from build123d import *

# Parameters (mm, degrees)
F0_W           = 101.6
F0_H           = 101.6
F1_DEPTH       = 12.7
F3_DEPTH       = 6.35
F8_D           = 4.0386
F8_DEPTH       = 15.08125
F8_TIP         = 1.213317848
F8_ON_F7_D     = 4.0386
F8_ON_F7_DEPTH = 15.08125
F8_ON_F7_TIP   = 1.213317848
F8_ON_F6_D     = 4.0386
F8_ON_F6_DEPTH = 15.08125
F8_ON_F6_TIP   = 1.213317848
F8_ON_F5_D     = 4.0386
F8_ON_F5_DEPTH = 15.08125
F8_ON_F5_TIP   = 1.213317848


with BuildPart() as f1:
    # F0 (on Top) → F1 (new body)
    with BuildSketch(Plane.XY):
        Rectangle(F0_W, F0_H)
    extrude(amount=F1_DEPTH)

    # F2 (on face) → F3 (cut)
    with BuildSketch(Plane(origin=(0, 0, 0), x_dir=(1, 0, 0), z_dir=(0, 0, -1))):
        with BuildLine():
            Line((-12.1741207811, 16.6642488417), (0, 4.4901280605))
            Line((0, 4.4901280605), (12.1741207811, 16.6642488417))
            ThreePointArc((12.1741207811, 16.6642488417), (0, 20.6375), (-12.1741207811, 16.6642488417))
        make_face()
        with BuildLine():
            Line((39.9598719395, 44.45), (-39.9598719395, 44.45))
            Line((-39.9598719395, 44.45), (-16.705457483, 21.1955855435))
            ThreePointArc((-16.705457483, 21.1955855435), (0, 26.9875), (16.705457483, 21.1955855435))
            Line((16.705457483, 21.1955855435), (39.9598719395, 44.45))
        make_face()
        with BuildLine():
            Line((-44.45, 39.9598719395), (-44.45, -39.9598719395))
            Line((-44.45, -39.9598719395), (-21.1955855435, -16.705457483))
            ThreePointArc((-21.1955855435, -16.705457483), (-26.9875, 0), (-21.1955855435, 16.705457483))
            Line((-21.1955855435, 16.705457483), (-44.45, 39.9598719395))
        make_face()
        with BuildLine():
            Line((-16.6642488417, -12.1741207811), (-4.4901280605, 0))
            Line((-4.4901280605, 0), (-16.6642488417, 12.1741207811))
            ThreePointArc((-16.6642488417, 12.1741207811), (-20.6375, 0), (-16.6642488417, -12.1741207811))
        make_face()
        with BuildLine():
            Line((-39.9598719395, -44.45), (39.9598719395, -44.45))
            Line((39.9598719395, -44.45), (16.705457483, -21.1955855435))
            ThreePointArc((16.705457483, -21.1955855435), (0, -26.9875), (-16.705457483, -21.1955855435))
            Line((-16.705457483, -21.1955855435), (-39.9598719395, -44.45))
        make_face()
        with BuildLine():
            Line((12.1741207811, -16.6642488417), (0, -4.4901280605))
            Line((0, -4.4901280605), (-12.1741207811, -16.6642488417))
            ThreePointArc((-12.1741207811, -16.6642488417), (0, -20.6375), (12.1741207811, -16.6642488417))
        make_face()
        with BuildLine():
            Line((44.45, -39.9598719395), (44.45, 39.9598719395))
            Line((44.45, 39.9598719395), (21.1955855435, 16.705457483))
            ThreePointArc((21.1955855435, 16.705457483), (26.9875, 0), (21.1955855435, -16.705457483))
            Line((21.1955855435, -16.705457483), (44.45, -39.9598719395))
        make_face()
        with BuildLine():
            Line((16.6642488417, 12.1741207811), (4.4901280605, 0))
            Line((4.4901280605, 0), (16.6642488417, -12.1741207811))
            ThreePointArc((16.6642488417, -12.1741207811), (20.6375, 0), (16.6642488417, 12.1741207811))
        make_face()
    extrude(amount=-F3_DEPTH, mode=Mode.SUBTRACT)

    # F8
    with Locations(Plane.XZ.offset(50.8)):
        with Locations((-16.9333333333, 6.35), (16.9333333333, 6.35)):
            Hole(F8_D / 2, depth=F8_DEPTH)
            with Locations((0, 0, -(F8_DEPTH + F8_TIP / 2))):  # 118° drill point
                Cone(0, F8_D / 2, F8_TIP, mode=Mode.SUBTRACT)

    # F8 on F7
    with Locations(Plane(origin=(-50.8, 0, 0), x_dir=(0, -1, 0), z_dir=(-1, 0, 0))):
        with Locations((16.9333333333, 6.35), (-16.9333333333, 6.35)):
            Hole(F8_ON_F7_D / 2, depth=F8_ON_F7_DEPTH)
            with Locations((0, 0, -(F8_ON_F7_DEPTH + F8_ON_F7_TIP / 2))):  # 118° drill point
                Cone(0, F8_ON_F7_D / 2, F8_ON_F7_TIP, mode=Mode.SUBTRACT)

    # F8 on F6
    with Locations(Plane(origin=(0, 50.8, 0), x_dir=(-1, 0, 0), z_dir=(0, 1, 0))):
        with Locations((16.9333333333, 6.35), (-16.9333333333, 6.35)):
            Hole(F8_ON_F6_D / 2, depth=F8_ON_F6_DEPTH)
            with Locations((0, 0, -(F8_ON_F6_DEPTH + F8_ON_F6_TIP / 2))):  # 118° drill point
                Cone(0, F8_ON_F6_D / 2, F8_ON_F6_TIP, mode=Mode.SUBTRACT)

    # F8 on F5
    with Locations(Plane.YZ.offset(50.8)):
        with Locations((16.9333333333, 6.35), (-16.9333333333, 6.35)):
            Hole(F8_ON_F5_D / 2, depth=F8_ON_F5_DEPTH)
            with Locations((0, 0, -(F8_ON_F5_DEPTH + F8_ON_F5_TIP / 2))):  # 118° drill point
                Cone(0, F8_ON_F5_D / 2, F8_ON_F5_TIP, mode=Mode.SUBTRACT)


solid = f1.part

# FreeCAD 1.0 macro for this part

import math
import FreeCAD as App
import Part
import Sketcher
Q = App.Units.Quantity


def add_polygon(sketch, points):
    """Adds a closed chain of lines whose ends are joined by coincident constraints."""
    first, n = sketch.GeometryCount, len(points)
    for a, b in zip(points, points[1:] + points[:1]):
        sketch.addGeometry(Part.LineSegment(App.Vector(*a, 0), App.Vector(*b, 0)), False)
    for i in range(n):
        sketch.addConstraint(Sketcher.Constraint("Coincident", first + i, 2, first + (i + 1) % n, 1))

doc = App.newDocument("Part")
body = doc.addObject("PartDesign::Body", "Body")

# Sketch on XY plane
sketch1 = body.newObject("Sketcher::SketchObject", "Sketch")
sketch1.AttachmentSupport = (doc.getObject("XY_Plane"), [""])
sketch1.MapMode = "FlatFace"
add_polygon(sketch1, [(-50.8, 50.8), (-50.8, -50.8), (50.8, -50.8), (50.8, 50.8)])  # lines 0-3
sketch1.addConstraint([
    Sketcher.Constraint("Vertical", 0),
    Sketcher.Constraint("Horizontal", 1),
    Sketcher.Constraint("Vertical", 2),
    Sketcher.Constraint("Horizontal", 3),
    Sketcher.Constraint("Symmetric", 0, 2, 2, 2, -1, 1),
    Sketcher.Constraint("Equal", 3, 0),
    Sketcher.Constraint("DistanceX", 1, 1, 1, 2, Q("4 in")),
])
pad1 = body.newObject("PartDesign::Pad", "Pad")
pad1.Profile = sketch1
pad1.Length = Q("0.5 in")

# Sketch on XY plane
sketch2 = body.newObject("Sketcher::SketchObject", "Sketch001")
sketch2.AttachmentSupport = (doc.getObject("XY_Plane"), [""])
sketch2.MapMode = "FlatFace"
sketch2.addGeometry([
    Part.LineSegment(App.Vector(-12.174121, -16.664249, 0), App.Vector(0, -4.490128, 0)),  # 0
    Part.LineSegment(App.Vector(0, -4.490128, 0), App.Vector(12.174121, -16.664249, 0)),  # 1
    Part.ArcOfCircle(Part.Circle(App.Vector(0, 0, 0), App.Vector(0, 0, 1), 20.6375), math.radians(-126.150117), math.radians(-53.849883)),  # 2
    Part.LineSegment(App.Vector(39.959872, -44.45, 0), App.Vector(-39.959872, -44.45, 0)),  # 3
    Part.LineSegment(App.Vector(-39.959872, -44.45, 0), App.Vector(-16.705457, -21.195586, 0)),  # 4
    Part.ArcOfCircle(Part.Circle(App.Vector(0, 0, 0), App.Vector(0, 0, 1), 26.9875), math.radians(-128.243673), math.radians(-51.756327)),  # 5
    Part.LineSegment(App.Vector(16.705457, -21.195586, 0), App.Vector(39.959872, -44.45, 0)),  # 6
    Part.LineSegment(App.Vector(-44.45, -39.959872, 0), App.Vector(-44.45, 39.959872, 0)),  # 7
    Part.LineSegment(App.Vector(-44.45, 39.959872, 0), App.Vector(-21.195586, 16.705457, 0)),  # 8
    Part.ArcOfCircle(Part.Circle(App.Vector(0, 0, 0), App.Vector(0, 0, 1), 26.9875), math.radians(141.756327), math.radians(218.243673)),  # 9
    Part.LineSegment(App.Vector(-21.195586, -16.705457, 0), App.Vector(-44.45, -39.959872, 0)),  # 10
    Part.LineSegment(App.Vector(-16.664249, 12.174121, 0), App.Vector(-4.490128, 0, 0)),  # 11
    Part.LineSegment(App.Vector(-4.490128, 0, 0), App.Vector(-16.664249, -12.174121, 0)),  # 12
    Part.ArcOfCircle(Part.Circle(App.Vector(0, 0, 0), App.Vector(0, 0, 1), 20.6375), math.radians(143.849883), math.radians(216.150117)),  # 13
    Part.LineSegment(App.Vector(-39.959872, 44.45, 0), App.Vector(39.959872, 44.45, 0)),  # 14
    Part.LineSegment(App.Vector(39.959872, 44.45, 0), App.Vector(16.705457, 21.195586, 0)),  # 15
    Part.ArcOfCircle(Part.Circle(App.Vector(0, 0, 0), App.Vector(0, 0, 1), 26.9875), math.radians(51.756327), math.radians(128.243673)),  # 16
    Part.LineSegment(App.Vector(-16.705457, 21.195586, 0), App.Vector(-39.959872, 44.45, 0)),  # 17
    Part.LineSegment(App.Vector(12.174121, 16.664249, 0), App.Vector(0, 4.490128, 0)),  # 18
    Part.LineSegment(App.Vector(0, 4.490128, 0), App.Vector(-12.174121, 16.664249, 0)),  # 19
    Part.ArcOfCircle(Part.Circle(App.Vector(0, 0, 0), App.Vector(0, 0, 1), 20.6375), math.radians(53.849883), math.radians(126.150117)),  # 20
    Part.LineSegment(App.Vector(44.45, 39.959872, 0), App.Vector(44.45, -39.959872, 0)),  # 21
    Part.LineSegment(App.Vector(44.45, -39.959872, 0), App.Vector(21.195586, -16.705457, 0)),  # 22
    Part.ArcOfCircle(Part.Circle(App.Vector(0, 0, 0), App.Vector(0, 0, 1), 26.9875), math.radians(-38.243673), math.radians(38.243673)),  # 23
    Part.LineSegment(App.Vector(21.195586, 16.705457, 0), App.Vector(44.45, 39.959872, 0)),  # 24
    Part.LineSegment(App.Vector(16.664249, -12.174121, 0), App.Vector(4.490128, 0, 0)),  # 25
    Part.LineSegment(App.Vector(4.490128, 0, 0), App.Vector(16.664249, 12.174121, 0)),  # 26
    Part.ArcOfCircle(Part.Circle(App.Vector(0, 0, 0), App.Vector(0, 0, 1), 20.6375), math.radians(-36.150117), math.radians(36.150117)),  # 27
], False)
sketch2.addConstraint([
    Sketcher.Constraint("Coincident", 0, 2, 1, 1),
    Sketcher.Constraint("Coincident", 1, 2, 2, 2),
    Sketcher.Constraint("Coincident", 2, 1, 0, 1),
    Sketcher.Constraint("Coincident", 3, 2, 4, 1),
    Sketcher.Constraint("Coincident", 4, 2, 5, 1),
    Sketcher.Constraint("Coincident", 5, 2, 6, 1),
    Sketcher.Constraint("Coincident", 6, 2, 3, 1),
    Sketcher.Constraint("Coincident", 7, 2, 8, 1),
    Sketcher.Constraint("Coincident", 8, 2, 9, 1),
    Sketcher.Constraint("Coincident", 9, 2, 10, 1),
    Sketcher.Constraint("Coincident", 10, 2, 7, 1),
    Sketcher.Constraint("Coincident", 11, 2, 12, 1),
    Sketcher.Constraint("Coincident", 12, 2, 13, 2),
    Sketcher.Constraint("Coincident", 13, 1, 11, 1),
    Sketcher.Constraint("Coincident", 14, 2, 15, 1),
    Sketcher.Constraint("Coincident", 15, 2, 16, 1),
    Sketcher.Constraint("Coincident", 16, 2, 17, 1),
    Sketcher.Constraint("Coincident", 17, 2, 14, 1),
    Sketcher.Constraint("Coincident", 18, 2, 19, 1),
    Sketcher.Constraint("Coincident", 19, 2, 20, 2),
    Sketcher.Constraint("Coincident", 20, 1, 18, 1),
    Sketcher.Constraint("Coincident", 21, 2, 22, 1),
    Sketcher.Constraint("Coincident", 22, 2, 23, 1),
    Sketcher.Constraint("Coincident", 23, 2, 24, 1),
    Sketcher.Constraint("Coincident", 24, 2, 21, 1),
    Sketcher.Constraint("Coincident", 25, 2, 26, 1),
    Sketcher.Constraint("Coincident", 26, 2, 27, 2),
    Sketcher.Constraint("Coincident", 27, 1, 25, 1),
    Sketcher.Constraint("Horizontal", 3),
    Sketcher.Constraint("Vertical", 7),
    Sketcher.Constraint("Horizontal", 14),
    Sketcher.Constraint("Vertical", 21),
    Sketcher.Constraint("Coincident", 2, 3, -1, 1),
    Sketcher.Constraint("Coincident", 5, 3, -1, 1),
    Sketcher.Constraint("Coincident", 9, 3, -1, 1),
    Sketcher.Constraint("Coincident", 13, 3, -1, 1),
    Sketcher.Constraint("Coincident", 16, 3, -1, 1),
    Sketcher.Constraint("Coincident", 20, 3, -1, 1),
    Sketcher.Constraint("Coincident", 23, 3, -1, 1),
    Sketcher.Constraint("Coincident", 27, 3, -1, 1),
    Sketcher.Constraint("Equal", 5, 9),
    Sketcher.Constraint("Equal", 2, 13),
    Sketcher.Constraint("Equal", 9, 16),
    Sketcher.Constraint("Equal", 13, 20),
    Sketcher.Constraint("Equal", 16, 23),
    Sketcher.Constraint("Equal", 20, 27),
    Sketcher.Constraint("Symmetric", 3, 2, 14, 2, -1, 1),
    Sketcher.Constraint("Symmetric", 0, 2, 18, 2, -1, 1),
    Sketcher.Constraint("Symmetric", 7, 2, 21, 2, -1, 1),
    Sketcher.Constraint("Symmetric", 11, 2, 25, 2, -1, 1),
    Sketcher.Constraint("PointOnObject", 0, 2, -2),
    Sketcher.Constraint("PointOnObject", 11, 2, -1),
    Sketcher.Constraint("Perpendicular", 0, 1),
    Sketcher.Constraint("Perpendicular", 1, 4),
    Sketcher.Constraint("Perpendicular", 4, 6),
    Sketcher.Constraint("Parallel", 6, 8),
    Sketcher.Constraint("Perpendicular", 8, 10),
    Sketcher.Constraint("Perpendicular", 10, 11),
    Sketcher.Constraint("Perpendicular", 11, 12),
    Sketcher.Constraint("Parallel", 12, 15),
    Sketcher.Constraint("Perpendicular", 15, 17),
    Sketcher.Constraint("Perpendicular", 17, 18),
    Sketcher.Constraint("Perpendicular", 18, 19),
    Sketcher.Constraint("Parallel", 19, 22),
    Sketcher.Constraint("Perpendicular", 22, 24),
    Sketcher.Constraint("Perpendicular", 24, 25),
    Sketcher.Constraint("Perpendicular", 25, 26),
    Sketcher.Constraint("Horizontal", 1, 2, 2, 1),
    Sketcher.Constraint("Horizontal", 4, 2, 5, 2),
    Sketcher.Constraint("Horizontal", 15, 2, 16, 2),
    Sketcher.Constraint("Horizontal", 10, 2, 21, 2),
    Sketcher.Constraint("Horizontal", 8, 2, 23, 2),
    Sketcher.Constraint("Equal", 14, 7),
    Sketcher.Constraint("Equal", 6, 8),
    Sketcher.Constraint("Equal", 1, 11),
    Sketcher.Constraint("Radius", 2, Q("0.8125 in")),
    Sketcher.Constraint("Radius", 5, Q("1.0625 in")),
    Sketcher.Constraint("DistanceY", 3, 2, -1, 1, Q("1.75 in")),
    Sketcher.Constraint("Distance", 4, Q("32.886708 mm")),
    Sketcher.Constraint("DistanceY", 0, 2, -1, 1, Q("4.490128 mm")),
])
pocket1 = body.newObject("PartDesign::Pocket", "Pocket")
pocket1.Profile = sketch2
pocket1.Length = Q("0.25 in")
pocket1.Reversed = True

# Sketch on XZ plane
sketch3 = body.newObject("Sketcher::SketchObject", "Sketch002")
sketch3.AttachmentSupport = (doc.getObject("XZ_Plane"), [""])
sketch3.MapMode = "FlatFace"
sketch3.AttachmentOffset = App.Placement(App.Vector(0, 0, 2 * 25.4), App.Rotation())
sketch3.addGeometry([
    Part.Circle(App.Vector(-16.933333, 6.35, 0), App.Vector(0, 0, 1), 2.0193),
    Part.Circle(App.Vector(16.933333, 6.35, 0), App.Vector(0, 0, 1), 2.0193),
], False)
sketch3.addConstraint([
    Sketcher.Constraint("Equal", 0, 1),
    Sketcher.Constraint("Symmetric", 0, 3, 1, 3, -2),
    Sketcher.Constraint("Diameter", 0, Q("0.159 in")),
    Sketcher.Constraint("DistanceY", -1, 1, 0, 3, Q("0.25 in")),
    Sketcher.Constraint("DistanceX", 0, 3, -1, 1, Q("16.933333 mm")),
])
doc.recompute()
hole = body.newObject("PartDesign::Hole", "Hole")
hole.Profile = sketch3
hole.ThreadType = "None"
hole.Diameter = Q("0.159 in")
hole.DepthType = "Dimension"
hole.Depth = Q("0.59375 in")
hole.DrillPoint = "Angled"
hole.DrillPointAngle = 118

# Sketch on YZ plane
sketch4 = body.newObject("Sketcher::SketchObject", "Sketch003")
sketch4.AttachmentSupport = (doc.getObject("YZ_Plane"), [""])
sketch4.MapMode = "FlatFace"
sketch4.AttachmentOffset = App.Placement(App.Vector(0, 0, -2 * 25.4), App.Rotation())
sketch4.addGeometry([
    Part.Circle(App.Vector(-16.933333, 6.35, 0), App.Vector(0, 0, 1), 2.0193),
    Part.Circle(App.Vector(16.933333, 6.35, 0), App.Vector(0, 0, 1), 2.0193),
], False)
sketch4.addConstraint([
    Sketcher.Constraint("Equal", 0, 1),
    Sketcher.Constraint("Symmetric", 0, 3, 1, 3, -2),
    Sketcher.Constraint("Diameter", 0, Q("0.159 in")),
    Sketcher.Constraint("DistanceY", -1, 1, 0, 3, Q("0.25 in")),
    Sketcher.Constraint("DistanceX", 0, 3, -1, 1, Q("16.933333 mm")),
])
doc.recompute()
hole2 = body.newObject("PartDesign::Hole", "Hole001")
hole2.Profile = sketch4
hole2.ThreadType = "None"
hole2.Diameter = Q("0.159 in")
hole2.DepthType = "Dimension"
hole2.Depth = Q("0.59375 in")
hole2.DrillPoint = "Angled"
hole2.DrillPointAngle = 118
hole2.Reversed = True

# Sketch on XZ plane
sketch5 = body.newObject("Sketcher::SketchObject", "Sketch004")
sketch5.AttachmentSupport = (doc.getObject("XZ_Plane"), [""])
sketch5.MapMode = "FlatFace"
sketch5.AttachmentOffset = App.Placement(App.Vector(0, 0, -2 * 25.4), App.Rotation())
sketch5.addGeometry([
    Part.Circle(App.Vector(-16.933333, 6.35, 0), App.Vector(0, 0, 1), 2.0193),
    Part.Circle(App.Vector(16.933333, 6.35, 0), App.Vector(0, 0, 1), 2.0193),
], False)
sketch5.addConstraint([
    Sketcher.Constraint("Equal", 0, 1),
    Sketcher.Constraint("Symmetric", 0, 3, 1, 3, -2),
    Sketcher.Constraint("Diameter", 0, Q("0.159 in")),
    Sketcher.Constraint("DistanceY", -1, 1, 0, 3, Q("0.25 in")),
    Sketcher.Constraint("DistanceX", 0, 3, -1, 1, Q("16.933333 mm")),
])
doc.recompute()
hole3 = body.newObject("PartDesign::Hole", "Hole002")
hole3.Profile = sketch5
hole3.ThreadType = "None"
hole3.Diameter = Q("0.159 in")
hole3.DepthType = "Dimension"
hole3.Depth = Q("0.59375 in")
hole3.DrillPoint = "Angled"
hole3.DrillPointAngle = 118
hole3.Reversed = True

# Sketch on YZ plane
sketch6 = body.newObject("Sketcher::SketchObject", "Sketch005")
sketch6.AttachmentSupport = (doc.getObject("YZ_Plane"), [""])
sketch6.MapMode = "FlatFace"
sketch6.AttachmentOffset = App.Placement(App.Vector(0, 0, 2 * 25.4), App.Rotation())
sketch6.addGeometry([
    Part.Circle(App.Vector(16.933333, 6.35, 0), App.Vector(0, 0, 1), 2.0193),
    Part.Circle(App.Vector(-16.933333, 6.35, 0), App.Vector(0, 0, 1), 2.0193),
], False)
sketch6.addConstraint([
    Sketcher.Constraint("Equal", 0, 1),
    Sketcher.Constraint("Symmetric", 0, 3, 1, 3, -2),
    Sketcher.Constraint("Diameter", 0, Q("0.159 in")),
    Sketcher.Constraint("DistanceY", -1, 1, 0, 3, Q("0.25 in")),
    Sketcher.Constraint("DistanceX", -1, 1, 0, 3, Q("16.933333 mm")),
])
doc.recompute()
hole4 = body.newObject("PartDesign::Hole", "Hole003")
hole4.Profile = sketch6
hole4.ThreadType = "None"
hole4.Diameter = Q("0.159 in")
hole4.DepthType = "Dimension"
hole4.Depth = Q("0.59375 in")
hole4.DrillPoint = "Angled"
hole4.DrillPointAngle = 118

doc.recompute()
